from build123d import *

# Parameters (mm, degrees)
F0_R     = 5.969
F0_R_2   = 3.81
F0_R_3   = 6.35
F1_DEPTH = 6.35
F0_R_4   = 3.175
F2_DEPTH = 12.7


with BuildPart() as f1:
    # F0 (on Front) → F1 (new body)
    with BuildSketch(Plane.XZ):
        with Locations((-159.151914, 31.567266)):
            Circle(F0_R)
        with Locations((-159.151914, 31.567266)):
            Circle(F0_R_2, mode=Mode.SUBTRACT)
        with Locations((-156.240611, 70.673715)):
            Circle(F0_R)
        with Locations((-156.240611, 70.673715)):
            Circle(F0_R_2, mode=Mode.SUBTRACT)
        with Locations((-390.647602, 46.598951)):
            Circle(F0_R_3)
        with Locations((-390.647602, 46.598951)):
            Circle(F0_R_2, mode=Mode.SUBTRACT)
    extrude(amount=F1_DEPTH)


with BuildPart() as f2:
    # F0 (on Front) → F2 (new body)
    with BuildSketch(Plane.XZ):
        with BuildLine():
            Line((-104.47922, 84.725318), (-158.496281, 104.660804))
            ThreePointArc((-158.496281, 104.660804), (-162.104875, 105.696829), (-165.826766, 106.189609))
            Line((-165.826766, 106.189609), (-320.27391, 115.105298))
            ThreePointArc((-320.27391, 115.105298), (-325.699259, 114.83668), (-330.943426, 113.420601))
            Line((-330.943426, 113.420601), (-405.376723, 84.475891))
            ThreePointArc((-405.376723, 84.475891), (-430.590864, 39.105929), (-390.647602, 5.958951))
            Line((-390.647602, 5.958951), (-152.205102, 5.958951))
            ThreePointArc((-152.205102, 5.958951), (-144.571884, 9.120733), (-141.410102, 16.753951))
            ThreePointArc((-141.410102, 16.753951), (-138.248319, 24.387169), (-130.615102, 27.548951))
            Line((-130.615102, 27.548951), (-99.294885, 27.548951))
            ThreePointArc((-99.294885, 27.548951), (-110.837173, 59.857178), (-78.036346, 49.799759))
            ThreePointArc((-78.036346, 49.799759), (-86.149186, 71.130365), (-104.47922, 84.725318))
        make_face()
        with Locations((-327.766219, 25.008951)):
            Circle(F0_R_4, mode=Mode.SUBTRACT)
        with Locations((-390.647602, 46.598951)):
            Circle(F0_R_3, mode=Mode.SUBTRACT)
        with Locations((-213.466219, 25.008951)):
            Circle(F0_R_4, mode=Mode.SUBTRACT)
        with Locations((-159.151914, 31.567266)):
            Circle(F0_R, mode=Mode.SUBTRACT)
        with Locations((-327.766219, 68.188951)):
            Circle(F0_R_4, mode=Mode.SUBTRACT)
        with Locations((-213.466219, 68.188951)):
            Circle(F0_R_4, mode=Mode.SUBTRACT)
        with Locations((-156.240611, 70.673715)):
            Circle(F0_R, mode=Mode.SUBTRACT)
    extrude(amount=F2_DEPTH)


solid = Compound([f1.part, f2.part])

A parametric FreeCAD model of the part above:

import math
import FreeCAD as App
import Part
import Sketcher
Q = App.Units.Quantity

doc = App.newDocument("Part")
body = doc.addObject("PartDesign::Body", "Body")
body.AllowCompound = True

sketch1 = doc.addObject("Sketcher::SketchObject", "Sketch")
body.addObject(sketch1)
sketch1.AttachmentSupport = (doc.XZ_Plane, [""])
sketch1.MapMode = "FlatFace"
sketch1.addGeometry(Part.Circle(App.Vector(-159.2, 31.6, 0), App.Vector(0, 0, 1), 6), False)
sketch1.addGeometry(Part.Circle(App.Vector(-159.2, 31.6, 0), App.Vector(0, 0, 1), 3.8), False)
sketch1.addGeometry(Part.Circle(App.Vector(-156.2, 70.7, 0), App.Vector(0, 0, 1), 6), False)
sketch1.addGeometry(Part.Circle(App.Vector(-156.2, 70.7, 0), App.Vector(0, 0, 1), 3.8), False)
sketch1.addGeometry(Part.Circle(App.Vector(-390.6, 46.6, 0), App.Vector(0, 0, 1), 6.3), False)
sketch1.addGeometry(Part.Circle(App.Vector(-390.6, 46.6, 0), App.Vector(0, 0, 1), 3.8), False)
sketch1.addConstraint(Sketcher.Constraint("Coincident", 1, 3, 0, 3))
sketch1.addConstraint(Sketcher.Constraint("Coincident", 3, 3, 2, 3))
sketch1.addConstraint(Sketcher.Constraint("Coincident", 5, 3, 4, 3))
sketch1.addConstraint(Sketcher.Constraint("Equal", 0, 2))
sketch1.addConstraint(Sketcher.Constraint("Equal", 1, 3))
sketch1.addConstraint(Sketcher.Constraint("Equal", 3, 5))
sketch1.addConstraint(Sketcher.Constraint("Diameter", 1, Q("0.3 in")))
sketch1.addConstraint(Sketcher.Constraint("Diameter", 4, Q("0.5 in")))
sketch1.addConstraint(Sketcher.Constraint("Diameter", 0, Q("0.47 in")))
sketch1.addConstraint(Sketcher.Constraint("DistanceX", 4, 3, -1, 1, Q("390.647602 mm")))
sketch1.addConstraint(Sketcher.Constraint("DistanceX", 2, 3, -1, 1, Q("156.240611 mm")))
sketch1.addConstraint(Sketcher.Constraint("DistanceY", -1, 1, 4, 3, Q("46.598951 mm")))
sketch1.addConstraint(Sketcher.Constraint("DistanceY", 0, 3, 2, 3, Q("39.106449 mm")))
sketch1.addConstraint(Sketcher.Constraint("DistanceX", 4, 3, 0, 3, Q("231.495688 mm")))
sketch1.addConstraint(Sketcher.Constraint("DistanceY", -1, 1, 0, 3, Q("31.567266 mm")))
pad1 = doc.addObject("PartDesign::Pad", "Pad")
body.addObject(pad1)
pad1.Profile = sketch1
pad1.Length = Q("0.25 in")
body2 = doc.addObject("PartDesign::Body", "Body001")

sketch2 = doc.addObject("Sketcher::SketchObject", "Sketch001")
body2.addObject(sketch2)
sketch2.AttachmentSupport = (doc.getObject("XZ_Plane001"), [""])
sketch2.MapMode = "FlatFace"
sketch2.addGeometry(Part.LineSegment(App.Vector(-104.47922, 84.725318, 0), App.Vector(-158.496281, 104.660804, 0)), False)
sketch2.addGeometry(Part.ArcOfCircle(Part.Circle(App.Vector(-167.290577, 80.831847, 0), App.Vector(0, 0, 1), 25.399977), math.radians(69.742953), math.radians(86.69619)), False)
sketch2.addGeometry(Part.LineSegment(App.Vector(-165.826766, 106.189609, 0), App.Vector(-320.27391, 115.105298, 0)), False)
sketch2.addGeometry(Part.ArcOfCircle(Part.Circle(App.Vector(-321.73773, 89.74754, 0), App.Vector(0, 0, 1), 25.399974), math.radians(86.69617), math.radians(111.249467)), False)
sketch2.addGeometry(Part.LineSegment(App.Vector(-330.943426, 113.420601, 0), App.Vector(-405.376723, 84.475891, 0)), False)
sketch2.addGeometry(Part.ArcOfCircle(Part.Circle(App.Vector(-390.647601, 46.598951, 0), App.Vector(0, 0, 1), 40.64), math.radians(111.249455), math.radians(269.999999)), False)
sketch2.addGeometry(Part.LineSegment(App.Vector(-390.647602, 5.958951, 0), App.Vector(-152.205102, 5.958951, 0)), False)
sketch2.addGeometry(Part.ArcOfCircle(Part.Circle(App.Vector(-152.205101, 16.75395, 0), App.Vector(0, 0, 1), 10.794999), math.radians(-90.000005), math.radians(0.000005)), False)
sketch2.addGeometry(Part.ArcOfCircle(Part.Circle(App.Vector(-130.615101, 16.75395, 0), App.Vector(0, 0, 1), 10.795001), math.radians(90.000004), math.radians(179.999996)), False)
sketch2.addGeometry(Part.LineSegment(App.Vector(-130.615102, 27.548951, 0), App.Vector(-99.294885, 27.548951, 0)), False)
sketch2.addGeometry(Part.ArcOfCircle(Part.Circle(App.Vector(-96.960102, 46.598951, 0), App.Vector(0, 0, 1), 19.192543), math.radians(9.600279), math.radians(263.01263)), False)
sketch2.addGeometry(Part.ArcOfCircle(Part.Circle(App.Vector(-118.550099, 46.598953, 0), App.Vector(0, 0, 1), 40.639997), math.radians(4.517294), math.radians(69.742962)), False)
sketch2.addGeometry(Part.Circle(App.Vector(-327.766219, 25.008951, 0), App.Vector(0, 0, 1), 3.175), False)
sketch2.addGeometry(Part.Circle(App.Vector(-390.647602, 46.598951, 0), App.Vector(0, 0, 1), 6.35), False)
sketch2.addGeometry(Part.Circle(App.Vector(-213.466219, 25.008951, 0), App.Vector(0, 0, 1), 3.175), False)
sketch2.addGeometry(Part.Circle(App.Vector(-159.151914, 31.567266, 0), App.Vector(0, 0, 1), 5.969), False)
sketch2.addGeometry(Part.Circle(App.Vector(-327.766219, 68.188951, 0), App.Vector(0, 0, 1), 3.175), False)
sketch2.addGeometry(Part.Circle(App.Vector(-213.466219, 68.188951, 0), App.Vector(0, 0, 1), 3.175), False)
sketch2.addGeometry(Part.Circle(App.Vector(-156.240611, 70.673715, 0), App.Vector(0, 0, 1), 5.969), False)
sketch2.addConstraint(Sketcher.Constraint("Coincident", 0, 2, 1, 1))
sketch2.addConstraint(Sketcher.Constraint("Coincident", 1, 2, 2, 1))
sketch2.addConstraint(Sketcher.Constraint("Coincident", 2, 2, 3, 1))
sketch2.addConstraint(Sketcher.Constraint("Coincident", 3, 2, 4, 1))
sketch2.addConstraint(Sketcher.Constraint("Coincident", 4, 2, 5, 1))
sketch2.addConstraint(Sketcher.Constraint("Coincident", 5, 2, 6, 1))
sketch2.addConstraint(Sketcher.Constraint("Coincident", 6, 2, 7, 1))
sketch2.addConstraint(Sketcher.Constraint("Coincident", 7, 2, 8, 2))
sketch2.addConstraint(Sketcher.Constraint("Coincident", 8, 1, 9, 1))
sketch2.addConstraint(Sketcher.Constraint("Coincident", 9, 2, 10, 2))
sketch2.addConstraint(Sketcher.Constraint("Coincident", 10, 1, 11, 1))
sketch2.addConstraint(Sketcher.Constraint("Coincident", 11, 2, 0, 1))
sketch2.addConstraint(Sketcher.Constraint("Horizontal", 6))
sketch2.addConstraint(Sketcher.Constraint("Horizontal", 9))
sketch2.addConstraint(Sketcher.Constraint("Coincident", 13, 3, 5, 3))
sketch2.addConstraint(Sketcher.Constraint("Diameter", 13, Q("0.5 in")))
sketch2.addConstraint(Sketcher.Constraint("Radius", 5, Q("1.6 in")))
sketch2.addConstraint(Sketcher.Constraint("Radius", 11, Q("1.5999999 in")))
sketch2.addConstraint(Sketcher.Constraint("Diameter", 12, Q("0.25 in")))
sketch2.addConstraint(Sketcher.Constraint("Diameter", 14, Q("0.25 in")))
sketch2.addConstraint(Sketcher.Constraint("Diameter", 15, Q("0.47 in")))
sketch2.addConstraint(Sketcher.Constraint("Diameter", 16, Q("0.25 in")))
sketch2.addConstraint(Sketcher.Constraint("Diameter", 17, Q("0.25 in")))
sketch2.addConstraint(Sketcher.Constraint("Diameter", 18, Q("0.47 in")))
sketch2.addConstraint(Sketcher.Constraint("Radius", 7, Q("0.425 in")))
sketch2.addConstraint(Sketcher.Constraint("Radius", 8, Q("0.425 in")))
sketch2.addConstraint(Sketcher.Constraint("DistanceX", 12, 3, 14, 3, Q("4.5 in")))
sketch2.addConstraint(Sketcher.Constraint("DistanceY", 12, 3, 16, 3, Q("1.7 in")))
sketch2.addConstraint(Sketcher.Constraint("DistanceX", 16, 3, 14, 3, Q("4.5 in")))
sketch2.addConstraint(Sketcher.Constraint("DistanceY", 14, 3, 16, 3, Q("1.7 in")))
sketch2.addConstraint(Sketcher.Constraint("DistanceY", 14, 3, 17, 3, Q("1.7 in")))
sketch2.addConstraint(Sketcher.Constraint("DistanceY", 6, 2, 11, 3, Q("1.6000001 in")))
sketch2.addConstraint(Sketcher.Constraint("DistanceX", 7, 2, 11, 3, Q("0.9000001 in")))
sketch2.addConstraint(Sketcher.Constraint("DistanceX", 11, 3, 10, 3, Q("0.8499999 in")))
sketch2.addConstraint(Sketcher.Constraint("DistanceY", 12, 3, 5, 3, Q("0.85 in")))
sketch2.addConstraint(Sketcher.Constraint("DistanceX", 6, 2, 8, 3, Q("0.85 in")))
sketch2.addConstraint(Sketcher.Constraint("DistanceY", 8, 1, 11, 3, Q("0.7500001 in")))
sketch2.addConstraint(Sketcher.Constraint("DistanceX", 7, 3, 8, 1, Q("0.85 in")))
sketch2.addConstraint(Sketcher.Constraint("DistanceY", 9, 2, 10, 3, Q("0.75 in")))
sketch2.addConstraint(Sketcher.Constraint("DistanceX", 6, 1, 6, 2, Q("9.3875 in")))
sketch2.addConstraint(Sketcher.Constraint("DistanceX", 5, 3, 10, 3, Q("11.5625 in")))
sketch2.addConstraint(Sketcher.Constraint("DistanceY", 6, 2, 7, 2, Q("0.425 in")))
sketch2.addConstraint(Sketcher.Constraint("Radius", 1, Q("25.399977 mm")))
sketch2.addConstraint(Sketcher.Constraint("Radius", 3, Q("25.399974 mm")))
sketch2.addConstraint(Sketcher.Constraint("Radius", 10, Q("19.192543 mm")))
sketch2.addConstraint(Sketcher.Constraint("DistanceX", 5, 3, -1, 1, Q("390.647601 mm")))
sketch2.addConstraint(Sketcher.Constraint("DistanceY", -1, 1, 2, 2, Q("115.105298 mm")))
sketch2.addConstraint(Sketcher.Constraint("DistanceY", -1, 1, 3, 2, Q("113.420601 mm")))
sketch2.addConstraint(Sketcher.Constraint("Distance", 0, Q("57.578351 mm")))
sketch2.addConstraint(Sketcher.Constraint("DistanceX", 3, 3, -1, 1, Q("321.73773 mm")))
sketch2.addConstraint(Sketcher.Constraint("DistanceY", -1, 1, 3, 3, Q("89.74754 mm")))
sketch2.addConstraint(Sketcher.Constraint("DistanceY", -1, 1, 5, 3, Q("46.598951 mm")))
sketch2.addConstraint(Sketcher.Constraint("DistanceX", 12, 3, -1, 1, Q("327.766219 mm")))
sketch2.addConstraint(Sketcher.Constraint("DistanceX", 17, 3, -1, 1, Q("213.466219 mm")))
sketch2.addConstraint(Sketcher.Constraint("DistanceX", 18, 3, -1, 1, Q("156.240611 mm")))
sketch2.addConstraint(Sketcher.Constraint("DistanceX", 0, 2, -1, 1, Q("158.496281 mm")))
sketch2.addConstraint(Sketcher.Constraint("DistanceY", -1, 1, 1, 2, Q("106.189609 mm")))
sketch2.addConstraint(Sketcher.Constraint("DistanceY", -1, 1, 4, 2, Q("84.475891 mm")))
sketch2.addConstraint(Sketcher.Constraint("DistanceX", 11, 2, -1, 1, Q("104.47922 mm")))
sketch2.addConstraint(Sketcher.Constraint("DistanceX", 12, 3, 1, 3, Q("160.475642 mm")))
sketch2.addConstraint(Sketcher.Constraint("DistanceY", 15, 3, 1, 3, Q("49.264581 mm")))
sketch2.addConstraint(Sketcher.Constraint("DistanceY", 15, 3, 18, 3, Q("39.106449 mm")))
sketch2.addConstraint(Sketcher.Constraint("DistanceX", 15, 3, 6, 2, Q("6.946812 mm")))
pad2 = doc.addObject("PartDesign::Pad", "Pad001")
body2.addObject(pad2)
pad2.Profile = sketch2
pad2.Length = Q("0.5 in")

doc.recompute()
